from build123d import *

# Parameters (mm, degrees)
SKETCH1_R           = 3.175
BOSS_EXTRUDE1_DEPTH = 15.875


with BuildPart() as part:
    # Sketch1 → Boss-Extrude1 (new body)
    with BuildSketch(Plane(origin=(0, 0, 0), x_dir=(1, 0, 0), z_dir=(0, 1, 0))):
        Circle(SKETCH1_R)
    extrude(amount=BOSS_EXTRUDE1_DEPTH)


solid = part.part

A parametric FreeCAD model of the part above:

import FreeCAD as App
import Part
import Sketcher

V = App.Vector
Q = App.Units.Quantity

doc = App.newDocument("Part")
params = doc.addObject("Spreadsheet::Sheet", "Params")
for row, (alias, value) in enumerate([
    ("sketch1_diameter", "0.25 in"),
    ("pad1_length", "0.625 in"),
], start=1):
    params.set(f"A{row}", alias)
    params.set(f"B{row}", "=" + value)
    params.setAlias(f"B{row}", alias)

body = doc.addObject("PartDesign::Body", "Body")

sketch1 = doc.addObject("Sketcher::SketchObject", "Sketch")
body.addObject(sketch1)
sketch1.AttachmentSupport = (doc.XZ_Plane, [""])
sketch1.MapMode = "FlatFace"
sketch1.addGeometry(Part.Circle(V(0, 0, 0), V(0, 0, 1), 3.2), False)
sketch1.addConstraint([
    Sketcher.Constraint("Coincident", 0, 3, -1, 1),
    Sketcher.Constraint("Diameter", 0, Q("0.25 in")),
])
sketch1.setExpression("Constraints[1]", "Params.sketch1_diameter")
pad1 = doc.addObject("PartDesign::Pad", "Pad")
body.addObject(pad1)
pad1.Profile = sketch1
pad1.setExpression("Length", "Params.pad1_length")
pad1.Reversed = True

doc.recompute()
